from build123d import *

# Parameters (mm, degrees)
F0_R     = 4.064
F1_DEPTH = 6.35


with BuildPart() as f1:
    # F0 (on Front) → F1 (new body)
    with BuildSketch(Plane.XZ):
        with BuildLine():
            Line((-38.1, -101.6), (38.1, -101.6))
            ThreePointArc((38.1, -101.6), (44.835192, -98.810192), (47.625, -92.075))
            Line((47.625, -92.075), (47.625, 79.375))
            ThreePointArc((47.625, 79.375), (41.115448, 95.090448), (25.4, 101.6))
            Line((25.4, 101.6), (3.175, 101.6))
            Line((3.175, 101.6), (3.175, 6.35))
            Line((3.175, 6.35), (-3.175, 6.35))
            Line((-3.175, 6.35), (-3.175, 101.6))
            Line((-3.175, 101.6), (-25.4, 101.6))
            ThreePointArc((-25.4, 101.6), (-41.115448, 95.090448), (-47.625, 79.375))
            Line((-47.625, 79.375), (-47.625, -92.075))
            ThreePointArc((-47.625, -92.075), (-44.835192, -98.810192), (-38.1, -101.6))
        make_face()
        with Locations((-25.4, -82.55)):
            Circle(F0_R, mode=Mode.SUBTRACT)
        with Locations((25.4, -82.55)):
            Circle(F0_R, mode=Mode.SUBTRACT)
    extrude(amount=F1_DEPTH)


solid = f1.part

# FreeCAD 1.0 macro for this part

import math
import FreeCAD as App
import Part
import Sketcher
Q = App.Units.Quantity

doc = App.newDocument("Part")
body = doc.addObject("PartDesign::Body", "Body")

sketch1 = body.newObject("Sketcher::SketchObject", "Sketch")
sketch1.AttachmentSupport = (doc.getObject("XZ_Plane"), [""])
sketch1.MapMode = "FlatFace"
sketch1.addGeometry(Part.LineSegment(App.Vector(-38.1, -101.6, 0), App.Vector(38.1, -101.6, 0)), False)
sketch1.addGeometry(Part.ArcOfCircle(Part.Circle(App.Vector(38.1, -92.1, 0), App.Vector(0, 0, 1), 9.5), math.radians(-90), math.radians(0)), False)
sketch1.addGeometry(Part.LineSegment(App.Vector(47.6, -92.1, 0), App.Vector(47.6, 79.4, 0)), False)
sketch1.addGeometry(Part.ArcOfCircle(Part.Circle(App.Vector(25.4, 79.4, 0), App.Vector(0, 0, 1), 22.2), math.radians(0), math.radians(90)), False)
sketch1.addGeometry(Part.LineSegment(App.Vector(25.4, 101.6, 0), App.Vector(3.2, 101.6, 0)), False)
sketch1.addGeometry(Part.LineSegment(App.Vector(3.2, 101.6, 0), App.Vector(3.2, 6.3, 0)), False)
sketch1.addGeometry(Part.LineSegment(App.Vector(3.2, 6.3, 0), App.Vector(-3.2, 6.3, 0)), False)
sketch1.addGeometry(Part.LineSegment(App.Vector(-3.2, 6.3, 0), App.Vector(-3.2, 101.6, 0)), False)
sketch1.addGeometry(Part.LineSegment(App.Vector(-3.2, 101.6, 0), App.Vector(-25.4, 101.6, 0)), False)
sketch1.addGeometry(Part.ArcOfCircle(Part.Circle(App.Vector(-25.4, 79.4, 0), App.Vector(0, 0, 1), 22.2), math.radians(90), math.radians(180)), False)
sketch1.addGeometry(Part.LineSegment(App.Vector(-47.6, 79.4, 0), App.Vector(-47.6, -92.1, 0)), False)
sketch1.addGeometry(Part.ArcOfCircle(Part.Circle(App.Vector(-38.1, -92.1, 0), App.Vector(0, 0, 1), 9.5), math.radians(-180), math.radians(-90)), False)
sketch1.addGeometry(Part.Circle(App.Vector(-25.4, -82.5, 0), App.Vector(0, 0, 1), 4.1), False)
sketch1.addGeometry(Part.Circle(App.Vector(25.4, -82.5, 0), App.Vector(0, 0, 1), 4.1), False)
sketch1.addConstraint(Sketcher.Constraint("Tangent", 0, 2, 1, 1))
sketch1.addConstraint(Sketcher.Constraint("Tangent", 1, 2, 2, 1))
sketch1.addConstraint(Sketcher.Constraint("Tangent", 2, 2, 3, 1))
sketch1.addConstraint(Sketcher.Constraint("Tangent", 3, 2, 4, 1))
sketch1.addConstraint(Sketcher.Constraint("Coincident", 4, 2, 5, 1))
sketch1.addConstraint(Sketcher.Constraint("Coincident", 5, 2, 6, 1))
sketch1.addConstraint(Sketcher.Constraint("Coincident", 6, 2, 7, 1))
sketch1.addConstraint(Sketcher.Constraint("Coincident", 7, 2, 8, 1))
sketch1.addConstraint(Sketcher.Constraint("Tangent", 8, 2, 9, 1))
sketch1.addConstraint(Sketcher.Constraint("Tangent", 9, 2, 10, 1))
sketch1.addConstraint(Sketcher.Constraint("Tangent", 10, 2, 11, 1))
sketch1.addConstraint(Sketcher.Constraint("Tangent", 11, 2, 0, 1))
sketch1.addConstraint(Sketcher.Constraint("Horizontal", 0))
sketch1.addConstraint(Sketcher.Constraint("Vertical", 2))
sketch1.addConstraint(Sketcher.Constraint("Horizontal", 4))
sketch1.addConstraint(Sketcher.Constraint("Vertical", 5))
sketch1.addConstraint(Sketcher.Constraint("Horizontal", 6))
sketch1.addConstraint(Sketcher.Constraint("Vertical", 7))
sketch1.addConstraint(Sketcher.Constraint("Horizontal", 8))
sketch1.addConstraint(Sketcher.Constraint("Vertical", 10))
sketch1.addConstraint(Sketcher.Constraint("Equal", 3, 9))
sketch1.addConstraint(Sketcher.Constraint("Equal", 1, 11))
sketch1.addConstraint(Sketcher.Constraint("Equal", 12, 13))
sketch1.addConstraint(Sketcher.Constraint("Symmetric", 3, 3, 9, 3, -2))
sketch1.addConstraint(Sketcher.Constraint("Symmetric", 12, 3, 13, 3, -2))
sketch1.addConstraint(Sketcher.Constraint("Vertical", 9, 3, 12, 3))
sketch1.addConstraint(Sketcher.Constraint("Equal", 4, 8))
sketch1.addConstraint(Sketcher.Constraint("Diameter", 12, Q("0.32 in")))
sketch1.addConstraint(Sketcher.Constraint("DistanceX", 0, 1, 0, 2, Q("3 in")))
sketch1.addConstraint(Sketcher.Constraint("DistanceX", -1, 1, 3, 3, Q("1 in")))
sketch1.addConstraint(Sketcher.Constraint("DistanceY", 0, 2, -1, 1, Q("4 in")))
sketch1.addConstraint(Sketcher.Constraint("DistanceY", -1, 1, 3, 2, Q("4 in")))
sketch1.addConstraint(Sketcher.Constraint("Radius", 1, Q("0.375 in")))
sketch1.addConstraint(Sketcher.Constraint("DistanceX", 6, 2, 2, 2, Q("2 in")))
sketch1.addConstraint(Sketcher.Constraint("DistanceY", 5, 2, 5, 1, Q("3.75 in")))
sketch1.addConstraint(Sketcher.Constraint("DistanceY", 13, 3, 5, 2, Q("3.5 in")))
pad1 = body.newObject("PartDesign::Pad", "Pad")
pad1.Profile = sketch1
pad1.Length = Q("0.25 in")

doc.recompute()
